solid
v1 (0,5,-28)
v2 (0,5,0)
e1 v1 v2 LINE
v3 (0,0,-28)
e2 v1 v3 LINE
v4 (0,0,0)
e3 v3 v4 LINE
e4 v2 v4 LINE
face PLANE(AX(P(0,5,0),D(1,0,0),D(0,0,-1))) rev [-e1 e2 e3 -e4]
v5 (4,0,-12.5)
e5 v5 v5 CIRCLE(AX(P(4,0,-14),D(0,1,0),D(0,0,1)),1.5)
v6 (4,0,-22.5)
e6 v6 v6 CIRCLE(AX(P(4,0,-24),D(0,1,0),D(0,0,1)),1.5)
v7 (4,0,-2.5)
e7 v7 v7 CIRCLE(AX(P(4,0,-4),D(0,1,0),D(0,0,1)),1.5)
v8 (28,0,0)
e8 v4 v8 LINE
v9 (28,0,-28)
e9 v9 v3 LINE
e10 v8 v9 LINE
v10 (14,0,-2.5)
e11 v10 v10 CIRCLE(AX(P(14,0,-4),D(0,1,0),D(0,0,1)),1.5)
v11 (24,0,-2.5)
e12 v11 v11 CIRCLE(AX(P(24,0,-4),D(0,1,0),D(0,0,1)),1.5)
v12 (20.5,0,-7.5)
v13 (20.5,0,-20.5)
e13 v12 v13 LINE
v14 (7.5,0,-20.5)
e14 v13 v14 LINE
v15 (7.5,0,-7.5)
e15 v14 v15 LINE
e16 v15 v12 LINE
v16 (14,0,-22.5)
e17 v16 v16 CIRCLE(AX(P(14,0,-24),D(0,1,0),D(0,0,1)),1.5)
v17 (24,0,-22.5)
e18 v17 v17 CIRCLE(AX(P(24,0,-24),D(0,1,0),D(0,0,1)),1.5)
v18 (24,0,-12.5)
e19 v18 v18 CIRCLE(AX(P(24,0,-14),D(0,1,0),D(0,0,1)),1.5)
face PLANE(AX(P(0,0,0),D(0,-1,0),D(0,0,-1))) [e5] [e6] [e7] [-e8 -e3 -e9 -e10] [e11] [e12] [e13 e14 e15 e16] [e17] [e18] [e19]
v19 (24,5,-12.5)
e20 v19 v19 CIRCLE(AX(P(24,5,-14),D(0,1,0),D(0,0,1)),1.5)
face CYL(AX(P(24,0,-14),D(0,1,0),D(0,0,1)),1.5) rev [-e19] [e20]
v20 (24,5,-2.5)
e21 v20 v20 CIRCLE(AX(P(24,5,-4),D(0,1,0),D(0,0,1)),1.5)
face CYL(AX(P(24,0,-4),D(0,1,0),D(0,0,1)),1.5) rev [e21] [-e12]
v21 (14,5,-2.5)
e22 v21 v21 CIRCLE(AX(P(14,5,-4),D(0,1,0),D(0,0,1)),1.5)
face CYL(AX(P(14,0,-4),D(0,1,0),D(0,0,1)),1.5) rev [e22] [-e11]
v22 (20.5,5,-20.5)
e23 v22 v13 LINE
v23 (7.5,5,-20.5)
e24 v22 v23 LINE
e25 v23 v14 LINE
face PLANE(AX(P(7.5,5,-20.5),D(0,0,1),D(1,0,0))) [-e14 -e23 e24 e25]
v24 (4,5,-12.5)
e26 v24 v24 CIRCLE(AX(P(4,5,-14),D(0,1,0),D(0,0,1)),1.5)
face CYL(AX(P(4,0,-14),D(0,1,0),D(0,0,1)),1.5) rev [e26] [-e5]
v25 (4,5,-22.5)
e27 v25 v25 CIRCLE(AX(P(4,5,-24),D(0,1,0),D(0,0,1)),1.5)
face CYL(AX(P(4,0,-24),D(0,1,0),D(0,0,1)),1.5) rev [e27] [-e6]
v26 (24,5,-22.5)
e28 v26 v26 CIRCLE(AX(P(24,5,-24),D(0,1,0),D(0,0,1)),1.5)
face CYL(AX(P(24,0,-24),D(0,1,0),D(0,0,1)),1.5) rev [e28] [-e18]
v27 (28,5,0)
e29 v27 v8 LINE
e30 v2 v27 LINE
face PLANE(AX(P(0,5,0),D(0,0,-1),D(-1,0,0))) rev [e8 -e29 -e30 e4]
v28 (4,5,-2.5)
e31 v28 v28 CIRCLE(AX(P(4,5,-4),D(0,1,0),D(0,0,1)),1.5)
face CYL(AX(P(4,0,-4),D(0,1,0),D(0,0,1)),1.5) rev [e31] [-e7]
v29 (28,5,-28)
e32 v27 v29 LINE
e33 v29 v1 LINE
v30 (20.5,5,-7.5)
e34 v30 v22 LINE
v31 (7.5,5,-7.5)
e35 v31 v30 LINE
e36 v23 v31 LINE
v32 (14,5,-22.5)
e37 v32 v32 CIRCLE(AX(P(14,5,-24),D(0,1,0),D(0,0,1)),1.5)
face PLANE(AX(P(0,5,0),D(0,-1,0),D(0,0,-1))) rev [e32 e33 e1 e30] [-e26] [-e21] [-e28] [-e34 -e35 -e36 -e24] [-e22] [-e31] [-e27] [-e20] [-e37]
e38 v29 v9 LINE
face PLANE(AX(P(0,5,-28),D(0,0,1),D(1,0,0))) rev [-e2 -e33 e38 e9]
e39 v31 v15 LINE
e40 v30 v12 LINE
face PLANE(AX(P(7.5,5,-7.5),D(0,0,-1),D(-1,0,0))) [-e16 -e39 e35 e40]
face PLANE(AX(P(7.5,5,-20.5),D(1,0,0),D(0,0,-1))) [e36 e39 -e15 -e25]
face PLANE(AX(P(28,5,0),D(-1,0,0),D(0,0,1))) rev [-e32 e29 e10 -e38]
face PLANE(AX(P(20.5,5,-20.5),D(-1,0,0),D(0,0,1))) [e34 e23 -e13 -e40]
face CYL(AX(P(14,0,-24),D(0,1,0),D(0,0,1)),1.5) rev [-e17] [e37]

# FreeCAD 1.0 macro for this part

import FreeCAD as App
import Part
import Sketcher

V = App.Vector
Q = App.Units.Quantity

doc = App.newDocument("Part")
params = doc.addObject("Spreadsheet::Sheet", "Params")
for row, (alias, value) in enumerate([
    ("sketch1_width", "28 mm"),
    ("sketch1_width2", "13 mm"),
    ("pad1_length", "5 mm"),
    ("sketch2_diameter", "3 mm"),
    ("sketch3_diameter", "3 mm"),
], start=1):
    params.set(f"A{row}", alias)
    params.set(f"B{row}", "=" + value)
    params.setAlias(f"B{row}", alias)

body = doc.addObject("PartDesign::Body", "Body")

sketch1 = body.newObject("Sketcher::SketchObject", "Sketch")
sketch1.AttachmentSupport = (doc.getObject("XZ_Plane"), [""])
sketch1.MapMode = "FlatFace"
sketch1.addGeometry(Part.LineSegment(V(0, -28, 0), V(0, 0, 0)), False)
sketch1.addGeometry(Part.LineSegment(V(0, 0, 0), V(28, 0, 0)), False)
sketch1.addGeometry(Part.LineSegment(V(28, 0, 0), V(28, -28, 0)), False)
sketch1.addGeometry(Part.LineSegment(V(28, -28, 0), V(0, -28, 0)), False)
sketch1.addGeometry(Part.LineSegment(V(20, -8, 0), V(8, -8, 0)), False)
sketch1.addGeometry(Part.LineSegment(V(8, -8, 0), V(8, -20, 0)), False)
sketch1.addGeometry(Part.LineSegment(V(8, -20, 0), V(20, -20, 0)), False)
sketch1.addGeometry(Part.LineSegment(V(20, -20, 0), V(20, -8, 0)), False)
sketch1.addConstraint(Sketcher.Constraint("Coincident", 0, 2, 1, 1))
sketch1.addConstraint(Sketcher.Constraint("Coincident", 1, 2, 2, 1))
sketch1.addConstraint(Sketcher.Constraint("Coincident", 2, 2, 3, 1))
sketch1.addConstraint(Sketcher.Constraint("Coincident", 3, 2, 0, 1))
sketch1.addConstraint(Sketcher.Constraint("Coincident", 4, 2, 5, 1))
sketch1.addConstraint(Sketcher.Constraint("Coincident", 5, 2, 6, 1))
sketch1.addConstraint(Sketcher.Constraint("Coincident", 6, 2, 7, 1))
sketch1.addConstraint(Sketcher.Constraint("Coincident", 7, 2, 4, 1))
sketch1.addConstraint(Sketcher.Constraint("Vertical", 0))
sketch1.addConstraint(Sketcher.Constraint("Horizontal", 1))
sketch1.addConstraint(Sketcher.Constraint("Vertical", 2))
sketch1.addConstraint(Sketcher.Constraint("Horizontal", 3))
sketch1.addConstraint(Sketcher.Constraint("Horizontal", 4))
sketch1.addConstraint(Sketcher.Constraint("Vertical", 5))
sketch1.addConstraint(Sketcher.Constraint("Horizontal", 6))
sketch1.addConstraint(Sketcher.Constraint("Vertical", 7))
sketch1.addConstraint(Sketcher.Constraint("Coincident", 0, 2, -1, 1))
sketch1.addConstraint(Sketcher.Constraint("Equal", 3, 0))
sketch1.addConstraint(Sketcher.Constraint("Equal", 6, 5))
sketch1.addConstraint(Sketcher.Constraint("DistanceX", 1, 1, 1, 2, Q("28 mm")))
sketch1.addConstraint(Sketcher.Constraint("DistanceX", 4, 2, 4, 1, Q("13 mm")))
sketch1.addConstraint(Sketcher.Constraint("DistanceX", -1, 1, 4, 2, Q("7.5 mm")))
sketch1.addConstraint(Sketcher.Constraint("DistanceY", 4, 2, -1, 1, Q("7.5 mm")))
sketch1.setExpression("Constraints[19]", "Params.sketch1_width")
sketch1.setExpression("Constraints[20]", "Params.sketch1_width2")
pad1 = body.newObject("PartDesign::Pad", "Pad")
pad1.Profile = sketch1
pad1.setExpression("Length", "Params.pad1_length")
pad1.Reversed = True

sketch2 = body.newObject("Sketcher::SketchObject", "Sketch001")
sketch2.AttachmentSupport = (doc.getObject("XZ_Plane"), [""])
sketch2.MapMode = "FlatFace"
sketch2.AttachmentOffset = App.Placement(V(0, 0, -5), App.Rotation())
sketch2.addGeometry(Part.Circle(V(24, -24, 0), V(0, 0, 1), 1.5), False)
sketch2.addConstraint(Sketcher.Constraint("Diameter", 0, Q("3 mm")))
sketch2.addConstraint(Sketcher.Constraint("DistanceX", -1, 1, 0, 3, Q("24 mm")))
sketch2.addConstraint(Sketcher.Constraint("DistanceY", 0, 3, -1, 1, Q("24 mm")))
sketch2.setExpression("Constraints[0]", "Params.sketch2_diameter")
pocket1 = body.newObject("PartDesign::Pocket", "Pocket")
pocket1.Profile = sketch2
pocket1.Type = "ThroughAll"
pocket1.Reversed = True

sketch3 = body.newObject("Sketcher::SketchObject", "Sketch002")
sketch3.AttachmentSupport = (doc.getObject("XZ_Plane"), [""])
sketch3.MapMode = "FlatFace"
sketch3.AttachmentOffset = App.Placement(V(0, 0, -5), App.Rotation())
sketch3.addGeometry(Part.Circle(V(4, -24, 0), V(0, 0, 1), 1.5), False)
sketch3.addGeometry(Part.Circle(V(4, -4, 0), V(0, 0, 1), 1.5), False)
sketch3.addGeometry(Part.Circle(V(24, -4, 0), V(0, 0, 1), 1.5), False)
sketch3.addGeometry(Part.Circle(V(24, -14, 0), V(0, 0, 1), 1.5), False)
sketch3.addGeometry(Part.Circle(V(14, -24, 0), V(0, 0, 1), 1.5), False)
sketch3.addGeometry(Part.Circle(V(4, -14, 0), V(0, 0, 1), 1.5), False)
sketch3.addGeometry(Part.Circle(V(14, -4, 0), V(0, 0, 1), 1.5), False)
sketch3.addConstraint(Sketcher.Constraint("Equal", 0, 1))
sketch3.addConstraint(Sketcher.Constraint("Equal", 1, 2))
sketch3.addConstraint(Sketcher.Constraint("Equal", 2, 3))
sketch3.addConstraint(Sketcher.Constraint("Equal", 3, 4))
sketch3.addConstraint(Sketcher.Constraint("Equal", 4, 5))
sketch3.addConstraint(Sketcher.Constraint("Equal", 5, 6))
sketch3.addConstraint(Sketcher.Constraint("Horizontal", 1, 3, 2, 3))
sketch3.addConstraint(Sketcher.Constraint("Horizontal", 0, 3, 4, 3))
sketch3.addConstraint(Sketcher.Constraint("Horizontal", 3, 3, 5, 3))
sketch3.addConstraint(Sketcher.Constraint("Horizontal", 2, 3, 6, 3))
sketch3.addConstraint(Sketcher.Constraint("Vertical", 0, 3, 1, 3))
sketch3.addConstraint(Sketcher.Constraint("Vertical", 2, 3, 3, 3))
sketch3.addConstraint(Sketcher.Constraint("Vertical", 1, 3, 5, 3))
sketch3.addConstraint(Sketcher.Constraint("Vertical", 4, 3, 6, 3))
sketch3.addConstraint(Sketcher.Constraint("Diameter", 0, Q("3 mm")))
sketch3.addConstraint(Sketcher.Constraint("DistanceX", -1, 1, 0, 3, Q("4 mm")))
sketch3.addConstraint(Sketcher.Constraint("DistanceY", 0, 3, -1, 1, Q("24 mm")))
sketch3.addConstraint(Sketcher.Constraint("DistanceY", 1, 3, -1, 1, Q("4 mm")))
sketch3.addConstraint(Sketcher.Constraint("DistanceX", -1, 1, 2, 3, Q("24 mm")))
sketch3.addConstraint(Sketcher.Constraint("DistanceY", 3, 3, -1, 1, Q("14 mm")))
sketch3.addConstraint(Sketcher.Constraint("DistanceX", -1, 1, 4, 3, Q("14 mm")))
sketch3.setExpression("Constraints[14]", "Params.sketch3_diameter")
pocket2 = body.newObject("PartDesign::Pocket", "Pocket001")
pocket2.Profile = sketch3
pocket2.Type = "ThroughAll"
pocket2.Reversed = True

doc.recompute()
